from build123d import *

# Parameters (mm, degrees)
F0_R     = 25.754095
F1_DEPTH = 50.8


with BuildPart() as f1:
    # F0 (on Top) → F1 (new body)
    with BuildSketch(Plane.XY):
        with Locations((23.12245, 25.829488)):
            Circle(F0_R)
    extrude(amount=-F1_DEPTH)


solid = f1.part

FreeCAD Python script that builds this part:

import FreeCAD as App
import Part
import Sketcher
Q = App.Units.Quantity

doc = App.newDocument("Part")
body = doc.addObject("PartDesign::Body", "Body")

sketch1 = doc.addObject("Sketcher::SketchObject", "Sketch")
body.addObject(sketch1)
sketch1.AttachmentSupport = (doc.XY_Plane, [""])
sketch1.MapMode = "FlatFace"
sketch1.addGeometry(Part.Circle(App.Vector(23, 26, 0), App.Vector(0, 0, 1), 26), False)
sketch1.addConstraint(Sketcher.Constraint("Diameter", 0, 51.50819))
sketch1.addConstraint(Sketcher.Constraint("DistanceX", -1, 1, 0, 3, 23.12245))
sketch1.addConstraint(Sketcher.Constraint("DistanceY", -1, 1, 0, 3, 25.829488))
pad1 = doc.addObject("PartDesign::Pad", "Pad")
body.addObject(pad1)
pad1.Profile = sketch1
pad1.Length = Q("2 in")
pad1.Reversed = True

doc.recompute()
